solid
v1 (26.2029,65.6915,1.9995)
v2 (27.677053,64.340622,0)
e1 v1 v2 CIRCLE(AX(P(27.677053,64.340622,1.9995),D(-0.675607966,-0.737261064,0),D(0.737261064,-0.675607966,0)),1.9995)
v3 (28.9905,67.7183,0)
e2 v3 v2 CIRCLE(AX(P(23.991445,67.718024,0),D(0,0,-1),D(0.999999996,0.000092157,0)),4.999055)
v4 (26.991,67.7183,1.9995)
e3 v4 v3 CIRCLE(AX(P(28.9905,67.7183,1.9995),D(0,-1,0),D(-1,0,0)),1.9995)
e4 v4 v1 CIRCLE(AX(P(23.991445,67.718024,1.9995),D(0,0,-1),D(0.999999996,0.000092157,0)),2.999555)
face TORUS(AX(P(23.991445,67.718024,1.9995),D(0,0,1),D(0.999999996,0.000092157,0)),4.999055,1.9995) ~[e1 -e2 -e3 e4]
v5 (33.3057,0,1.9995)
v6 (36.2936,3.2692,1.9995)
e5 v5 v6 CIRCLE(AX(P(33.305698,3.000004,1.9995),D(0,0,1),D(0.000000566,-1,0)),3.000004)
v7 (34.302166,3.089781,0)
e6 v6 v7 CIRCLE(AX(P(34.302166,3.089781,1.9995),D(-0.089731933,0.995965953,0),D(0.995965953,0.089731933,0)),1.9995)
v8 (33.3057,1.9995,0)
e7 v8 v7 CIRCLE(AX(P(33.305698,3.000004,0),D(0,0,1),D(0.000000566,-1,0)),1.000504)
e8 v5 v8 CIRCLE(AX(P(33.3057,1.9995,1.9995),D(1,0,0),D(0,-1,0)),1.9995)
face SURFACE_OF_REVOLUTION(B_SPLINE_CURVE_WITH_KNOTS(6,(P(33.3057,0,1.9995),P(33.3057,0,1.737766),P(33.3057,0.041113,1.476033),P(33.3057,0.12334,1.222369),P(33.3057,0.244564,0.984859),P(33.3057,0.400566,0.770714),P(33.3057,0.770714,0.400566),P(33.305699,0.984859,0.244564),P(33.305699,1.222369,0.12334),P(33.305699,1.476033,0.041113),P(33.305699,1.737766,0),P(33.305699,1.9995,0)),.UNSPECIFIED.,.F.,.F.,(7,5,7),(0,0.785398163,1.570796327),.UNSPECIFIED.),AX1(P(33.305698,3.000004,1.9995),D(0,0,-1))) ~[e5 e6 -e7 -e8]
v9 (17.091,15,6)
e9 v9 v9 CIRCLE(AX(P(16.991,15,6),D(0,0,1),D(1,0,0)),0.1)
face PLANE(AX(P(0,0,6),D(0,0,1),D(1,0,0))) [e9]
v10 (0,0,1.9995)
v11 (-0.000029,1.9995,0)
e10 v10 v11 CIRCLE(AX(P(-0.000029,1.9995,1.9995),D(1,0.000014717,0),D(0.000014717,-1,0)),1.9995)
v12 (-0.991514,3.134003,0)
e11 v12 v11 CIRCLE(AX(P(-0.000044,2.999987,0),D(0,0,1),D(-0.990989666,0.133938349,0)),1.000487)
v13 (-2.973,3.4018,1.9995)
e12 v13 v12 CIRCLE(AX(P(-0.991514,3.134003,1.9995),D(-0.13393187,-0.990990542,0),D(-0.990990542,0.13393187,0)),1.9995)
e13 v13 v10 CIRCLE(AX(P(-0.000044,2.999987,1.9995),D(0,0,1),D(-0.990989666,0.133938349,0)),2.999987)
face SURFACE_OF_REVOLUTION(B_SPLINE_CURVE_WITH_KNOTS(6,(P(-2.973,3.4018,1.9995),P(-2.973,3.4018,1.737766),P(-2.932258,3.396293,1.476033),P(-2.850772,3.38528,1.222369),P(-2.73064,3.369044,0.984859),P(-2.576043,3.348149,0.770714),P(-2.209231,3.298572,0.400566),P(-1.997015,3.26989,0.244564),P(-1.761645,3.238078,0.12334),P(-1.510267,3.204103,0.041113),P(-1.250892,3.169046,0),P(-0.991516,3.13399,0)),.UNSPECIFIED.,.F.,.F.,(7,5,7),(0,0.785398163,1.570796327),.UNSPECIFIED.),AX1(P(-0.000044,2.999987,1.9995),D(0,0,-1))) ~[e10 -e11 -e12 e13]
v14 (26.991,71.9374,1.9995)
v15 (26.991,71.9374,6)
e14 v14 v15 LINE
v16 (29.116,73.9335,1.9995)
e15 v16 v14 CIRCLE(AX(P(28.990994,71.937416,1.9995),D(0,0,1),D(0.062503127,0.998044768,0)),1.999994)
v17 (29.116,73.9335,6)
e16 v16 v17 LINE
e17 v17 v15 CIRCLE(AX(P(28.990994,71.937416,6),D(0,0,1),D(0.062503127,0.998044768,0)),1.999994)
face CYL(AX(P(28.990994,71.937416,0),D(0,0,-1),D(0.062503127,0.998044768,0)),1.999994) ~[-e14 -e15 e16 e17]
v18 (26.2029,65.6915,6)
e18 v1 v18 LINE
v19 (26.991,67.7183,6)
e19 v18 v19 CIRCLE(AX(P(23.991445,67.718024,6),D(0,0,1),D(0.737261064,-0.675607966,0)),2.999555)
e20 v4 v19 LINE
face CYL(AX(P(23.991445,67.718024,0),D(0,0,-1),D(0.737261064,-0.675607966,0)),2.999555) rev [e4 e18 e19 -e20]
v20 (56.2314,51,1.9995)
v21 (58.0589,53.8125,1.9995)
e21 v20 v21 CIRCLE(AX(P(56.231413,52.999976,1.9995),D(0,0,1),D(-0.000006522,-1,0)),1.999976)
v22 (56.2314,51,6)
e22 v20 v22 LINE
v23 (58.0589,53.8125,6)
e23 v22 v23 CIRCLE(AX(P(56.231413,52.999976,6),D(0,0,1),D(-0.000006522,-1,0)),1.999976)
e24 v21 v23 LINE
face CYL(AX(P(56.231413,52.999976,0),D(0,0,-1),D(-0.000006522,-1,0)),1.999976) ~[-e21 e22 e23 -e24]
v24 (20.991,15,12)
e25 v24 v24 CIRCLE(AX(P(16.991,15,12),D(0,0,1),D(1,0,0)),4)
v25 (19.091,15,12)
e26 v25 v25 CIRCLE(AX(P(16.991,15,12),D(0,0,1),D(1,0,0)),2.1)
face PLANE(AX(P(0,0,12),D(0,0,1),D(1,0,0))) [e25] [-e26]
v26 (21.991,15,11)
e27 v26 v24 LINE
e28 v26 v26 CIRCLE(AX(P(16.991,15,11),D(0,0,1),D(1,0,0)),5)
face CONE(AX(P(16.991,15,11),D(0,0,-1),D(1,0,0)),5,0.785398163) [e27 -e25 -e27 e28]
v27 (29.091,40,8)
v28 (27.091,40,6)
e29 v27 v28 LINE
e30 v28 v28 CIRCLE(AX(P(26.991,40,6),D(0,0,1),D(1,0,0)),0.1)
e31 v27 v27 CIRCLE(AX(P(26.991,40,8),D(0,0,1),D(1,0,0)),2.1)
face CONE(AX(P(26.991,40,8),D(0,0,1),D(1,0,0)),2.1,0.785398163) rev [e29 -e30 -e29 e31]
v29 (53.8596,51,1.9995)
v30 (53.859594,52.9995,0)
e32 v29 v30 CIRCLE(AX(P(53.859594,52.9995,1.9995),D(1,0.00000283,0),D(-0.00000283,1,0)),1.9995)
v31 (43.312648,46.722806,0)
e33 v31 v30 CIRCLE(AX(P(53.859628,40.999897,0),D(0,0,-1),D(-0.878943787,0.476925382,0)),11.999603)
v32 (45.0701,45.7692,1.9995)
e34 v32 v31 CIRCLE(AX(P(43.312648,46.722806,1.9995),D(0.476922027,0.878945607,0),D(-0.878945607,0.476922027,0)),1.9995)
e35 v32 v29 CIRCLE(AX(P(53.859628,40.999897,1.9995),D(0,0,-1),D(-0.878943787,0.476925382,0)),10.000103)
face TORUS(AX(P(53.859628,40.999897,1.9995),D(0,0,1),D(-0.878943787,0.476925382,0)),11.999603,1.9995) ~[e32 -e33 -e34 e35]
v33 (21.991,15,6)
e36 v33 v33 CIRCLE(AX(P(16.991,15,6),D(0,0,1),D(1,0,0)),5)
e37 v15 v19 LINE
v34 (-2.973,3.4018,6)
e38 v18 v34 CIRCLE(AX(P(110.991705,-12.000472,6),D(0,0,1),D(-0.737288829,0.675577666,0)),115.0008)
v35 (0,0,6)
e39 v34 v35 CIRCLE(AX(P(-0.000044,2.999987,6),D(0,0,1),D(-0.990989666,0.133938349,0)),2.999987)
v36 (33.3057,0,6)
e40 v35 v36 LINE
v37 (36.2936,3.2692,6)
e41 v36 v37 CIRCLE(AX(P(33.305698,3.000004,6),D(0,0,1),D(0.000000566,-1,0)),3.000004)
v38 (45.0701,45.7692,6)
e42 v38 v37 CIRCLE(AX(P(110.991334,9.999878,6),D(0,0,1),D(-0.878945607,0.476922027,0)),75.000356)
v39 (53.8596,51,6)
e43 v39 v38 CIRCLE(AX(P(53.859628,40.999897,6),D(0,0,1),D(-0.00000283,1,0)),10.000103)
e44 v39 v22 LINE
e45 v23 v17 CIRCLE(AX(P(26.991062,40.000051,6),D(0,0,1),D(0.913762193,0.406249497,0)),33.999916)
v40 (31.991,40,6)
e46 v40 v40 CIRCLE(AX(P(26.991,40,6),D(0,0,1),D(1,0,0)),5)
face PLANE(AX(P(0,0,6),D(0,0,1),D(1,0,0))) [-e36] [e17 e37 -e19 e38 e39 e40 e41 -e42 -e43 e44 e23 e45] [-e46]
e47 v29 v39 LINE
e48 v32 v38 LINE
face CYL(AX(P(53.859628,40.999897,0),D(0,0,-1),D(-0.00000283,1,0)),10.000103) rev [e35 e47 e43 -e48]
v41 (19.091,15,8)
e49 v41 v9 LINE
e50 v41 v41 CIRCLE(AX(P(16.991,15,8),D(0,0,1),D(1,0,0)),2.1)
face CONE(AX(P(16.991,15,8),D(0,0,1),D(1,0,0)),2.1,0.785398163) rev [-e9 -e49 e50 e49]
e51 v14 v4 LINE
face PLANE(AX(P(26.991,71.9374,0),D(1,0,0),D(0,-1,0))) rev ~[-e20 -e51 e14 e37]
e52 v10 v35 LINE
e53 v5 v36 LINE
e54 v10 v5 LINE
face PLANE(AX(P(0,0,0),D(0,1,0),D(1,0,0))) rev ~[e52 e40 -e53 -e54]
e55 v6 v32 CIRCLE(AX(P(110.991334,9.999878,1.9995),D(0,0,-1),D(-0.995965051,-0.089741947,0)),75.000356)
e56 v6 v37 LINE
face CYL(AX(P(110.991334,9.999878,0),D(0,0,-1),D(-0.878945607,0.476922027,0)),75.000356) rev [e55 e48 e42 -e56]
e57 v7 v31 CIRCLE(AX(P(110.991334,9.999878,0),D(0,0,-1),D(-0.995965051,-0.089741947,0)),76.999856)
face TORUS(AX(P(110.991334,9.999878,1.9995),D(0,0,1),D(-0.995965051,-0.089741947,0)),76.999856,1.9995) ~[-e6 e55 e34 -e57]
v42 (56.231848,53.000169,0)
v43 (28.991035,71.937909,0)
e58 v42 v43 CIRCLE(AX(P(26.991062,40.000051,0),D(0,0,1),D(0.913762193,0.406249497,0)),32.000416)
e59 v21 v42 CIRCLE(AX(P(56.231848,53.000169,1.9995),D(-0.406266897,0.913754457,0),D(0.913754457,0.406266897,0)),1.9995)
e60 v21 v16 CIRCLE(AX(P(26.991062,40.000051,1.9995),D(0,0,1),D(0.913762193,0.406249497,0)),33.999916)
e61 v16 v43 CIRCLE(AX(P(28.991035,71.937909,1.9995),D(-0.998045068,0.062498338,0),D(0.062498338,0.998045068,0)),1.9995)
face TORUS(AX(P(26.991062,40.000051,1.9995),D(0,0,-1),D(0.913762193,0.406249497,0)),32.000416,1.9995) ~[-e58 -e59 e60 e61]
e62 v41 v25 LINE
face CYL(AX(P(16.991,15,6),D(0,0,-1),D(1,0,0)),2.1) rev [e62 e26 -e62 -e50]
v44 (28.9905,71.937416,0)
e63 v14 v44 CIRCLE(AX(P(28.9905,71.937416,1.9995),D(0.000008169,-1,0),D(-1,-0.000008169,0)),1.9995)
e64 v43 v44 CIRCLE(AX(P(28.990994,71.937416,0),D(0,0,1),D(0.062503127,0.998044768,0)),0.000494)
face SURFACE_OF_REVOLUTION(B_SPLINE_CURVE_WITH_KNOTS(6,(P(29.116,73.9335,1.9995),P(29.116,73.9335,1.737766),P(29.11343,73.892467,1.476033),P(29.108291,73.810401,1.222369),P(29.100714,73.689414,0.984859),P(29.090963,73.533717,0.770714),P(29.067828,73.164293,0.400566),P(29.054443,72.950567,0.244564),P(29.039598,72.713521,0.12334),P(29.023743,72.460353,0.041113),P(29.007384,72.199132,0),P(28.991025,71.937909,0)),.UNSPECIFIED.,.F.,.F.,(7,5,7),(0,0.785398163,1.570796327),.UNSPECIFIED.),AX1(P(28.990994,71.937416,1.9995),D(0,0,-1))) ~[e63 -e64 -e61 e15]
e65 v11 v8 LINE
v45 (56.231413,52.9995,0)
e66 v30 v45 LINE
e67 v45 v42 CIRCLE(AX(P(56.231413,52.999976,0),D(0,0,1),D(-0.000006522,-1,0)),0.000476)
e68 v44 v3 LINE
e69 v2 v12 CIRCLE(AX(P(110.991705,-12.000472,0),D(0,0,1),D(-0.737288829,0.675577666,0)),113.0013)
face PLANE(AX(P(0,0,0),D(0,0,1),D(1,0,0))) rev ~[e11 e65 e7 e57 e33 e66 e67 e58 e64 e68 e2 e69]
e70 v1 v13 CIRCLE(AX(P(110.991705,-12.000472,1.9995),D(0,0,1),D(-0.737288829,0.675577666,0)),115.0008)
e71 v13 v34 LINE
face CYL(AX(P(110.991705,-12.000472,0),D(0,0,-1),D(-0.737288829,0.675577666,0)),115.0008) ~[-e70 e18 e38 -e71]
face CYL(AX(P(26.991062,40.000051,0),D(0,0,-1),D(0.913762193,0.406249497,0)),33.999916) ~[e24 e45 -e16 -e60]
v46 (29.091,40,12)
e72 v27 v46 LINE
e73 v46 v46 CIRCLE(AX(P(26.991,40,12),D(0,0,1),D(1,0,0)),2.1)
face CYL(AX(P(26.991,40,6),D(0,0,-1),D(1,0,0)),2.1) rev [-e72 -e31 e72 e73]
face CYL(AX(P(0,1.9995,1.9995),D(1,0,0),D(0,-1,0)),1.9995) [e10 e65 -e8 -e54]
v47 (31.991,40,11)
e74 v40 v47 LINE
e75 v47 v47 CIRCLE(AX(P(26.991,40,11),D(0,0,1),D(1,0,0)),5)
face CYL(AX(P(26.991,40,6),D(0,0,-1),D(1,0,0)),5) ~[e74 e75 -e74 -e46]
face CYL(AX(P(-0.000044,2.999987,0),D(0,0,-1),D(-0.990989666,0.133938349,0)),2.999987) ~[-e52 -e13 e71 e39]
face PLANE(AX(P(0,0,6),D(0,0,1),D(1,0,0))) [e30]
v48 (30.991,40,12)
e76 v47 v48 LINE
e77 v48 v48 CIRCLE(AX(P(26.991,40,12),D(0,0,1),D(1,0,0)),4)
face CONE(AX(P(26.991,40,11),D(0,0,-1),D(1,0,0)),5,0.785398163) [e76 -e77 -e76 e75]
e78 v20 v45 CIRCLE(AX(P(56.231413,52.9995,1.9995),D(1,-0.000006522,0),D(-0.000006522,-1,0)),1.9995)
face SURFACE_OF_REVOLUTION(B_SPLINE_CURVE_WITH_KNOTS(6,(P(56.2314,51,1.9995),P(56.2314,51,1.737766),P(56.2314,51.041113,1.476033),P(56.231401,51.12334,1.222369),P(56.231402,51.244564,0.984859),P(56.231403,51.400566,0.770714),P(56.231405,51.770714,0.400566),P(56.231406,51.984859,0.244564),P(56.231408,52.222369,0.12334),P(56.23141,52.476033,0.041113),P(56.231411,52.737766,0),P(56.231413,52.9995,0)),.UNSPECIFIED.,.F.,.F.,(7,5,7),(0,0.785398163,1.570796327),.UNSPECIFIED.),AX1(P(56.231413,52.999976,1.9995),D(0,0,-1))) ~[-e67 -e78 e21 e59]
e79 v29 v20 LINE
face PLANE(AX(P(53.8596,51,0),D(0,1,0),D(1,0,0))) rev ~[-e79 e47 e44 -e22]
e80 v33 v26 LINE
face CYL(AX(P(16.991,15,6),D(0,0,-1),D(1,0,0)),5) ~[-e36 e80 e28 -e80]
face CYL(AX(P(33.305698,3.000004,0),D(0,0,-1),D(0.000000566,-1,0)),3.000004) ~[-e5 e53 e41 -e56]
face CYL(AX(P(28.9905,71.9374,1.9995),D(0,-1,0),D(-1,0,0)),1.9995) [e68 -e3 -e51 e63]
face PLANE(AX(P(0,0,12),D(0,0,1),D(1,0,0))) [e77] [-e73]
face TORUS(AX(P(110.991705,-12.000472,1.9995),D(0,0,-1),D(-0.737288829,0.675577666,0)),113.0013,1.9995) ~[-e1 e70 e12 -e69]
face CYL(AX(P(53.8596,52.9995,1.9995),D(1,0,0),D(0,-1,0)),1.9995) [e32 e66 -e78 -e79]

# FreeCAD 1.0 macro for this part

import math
import FreeCAD as App
import Part
import Sketcher
from FreeCAD import Vector


def edges_at(feature, points):
    """Names of the edges that pass closest to the given points."""
    edges = feature.Shape.Edges
    near = lambda p: min(range(len(edges)), key=lambda i: edges[i].distToShape(Part.Vertex(*p))[0])
    return sorted({f"Edge{near(p) + 1}" for p in points})

doc = App.newDocument("Part")
params = doc.addObject("Spreadsheet::Sheet", "Params")
for row, (alias, value) in enumerate([
    ("sketch1_radius", "3 mm"),
    ("sketch1_radius2", "115 mm"),
    ("sketch1_radius3", "75 mm"),
    ("sketch1_radius4", "10 mm"),
    ("sketch1_radius5", "2 mm"),
    ("pad1_length", "6 mm"),
    ("fillet_radius", "2 mm"),
    ("sketch2_diameter", "10 mm"),
    ("sketch2_diameter2", "4.2 mm"),
    ("pad2_length", "6 mm"),
    ("chamfer_size", "1 mm"),
    ("chamfer2_size", "2 mm"),
    ("chamfer3_size", "2 mm"),
], start=1):
    params.set(f"A{row}", alias)
    params.set(f"B{row}", "=" + value)
    params.setAlias(f"B{row}", alias)

body = doc.addObject("PartDesign::Body", "Body")

sketch1 = body.newObject("Sketcher::SketchObject", "Sketch")
sketch1.AttachmentSupport = (doc.getObject("XY_Plane"), [""])
sketch1.MapMode = "FlatFace"
sketch1.addGeometry(Part.ArcOfCircle(Part.Circle(Vector(23.991, 67.7183, 0), Vector(0, 0, 1), 3.00007), math.radians(-42.499536), math.radians(0)), False)
sketch1.addGeometry(Part.ArcOfCircle(Part.Circle(Vector(110.991, -12, 0), Vector(0, 0, 1), 114.999961), math.radians(137.500911), math.radians(172.303326)), False)
sketch1.addGeometry(Part.ArcOfCircle(Part.Circle(Vector(0, 3, 0), Vector(0, 0, 1), 3.000029), math.radians(172.30313), math.radians(270)), False)
sketch1.addGeometry(Part.LineSegment(Vector(0, 0, 0), Vector(33.3057, 0, 0)), False)
sketch1.addGeometry(Part.ArcOfCircle(Part.Circle(Vector(33.3057, 3, 0), Vector(0, 0, 1), 3), math.radians(-90), math.radians(5.148262)), False)
sketch1.addGeometry(Part.ArcOfCircle(Part.Circle(Vector(110.991, 10, 0), Vector(0, 0, 1), 75.000005), math.radians(151.515393), math.radians(185.148877)), False)
sketch1.addGeometry(Part.ArcOfCircle(Part.Circle(Vector(53.8596, 41, 0), Vector(0, 0, 1), 10), math.radians(90), math.radians(151.515655)), False)
sketch1.addGeometry(Part.LineSegment(Vector(53.8596, 51, 0), Vector(56.2314, 51, 0)), False)
sketch1.addGeometry(Part.ArcOfCircle(Part.Circle(Vector(56.2314, 53, 0), Vector(0, 0, 1), 2), math.radians(-90), math.radians(23.969761)), False)
sketch1.addGeometry(Part.ArcOfCircle(Part.Circle(Vector(26.991, 40, 0), Vector(0, 0, 1), 33.999994), math.radians(23.969487), math.radians(86.416675)), False)
sketch1.addGeometry(Part.ArcOfCircle(Part.Circle(Vector(28.991, 71.9374, 0), Vector(0, 0, 1), 2.00001), math.radians(86.416696), math.radians(180)), False)
sketch1.addGeometry(Part.LineSegment(Vector(26.991, 71.9374, 0), Vector(26.991, 67.7183, 0)), False)
sketch1.addConstraint(Sketcher.Constraint("Tangent", 0, 1, 1, 1))
sketch1.addConstraint(Sketcher.Constraint("Tangent", 1, 2, 2, 1))
sketch1.addConstraint(Sketcher.Constraint("Tangent", 2, 2, 3, 1))
sketch1.addConstraint(Sketcher.Constraint("Tangent", 3, 2, 4, 1))
sketch1.addConstraint(Sketcher.Constraint("Tangent", 4, 2, 5, 2))
sketch1.addConstraint(Sketcher.Constraint("Tangent", 5, 1, 6, 2))
sketch1.addConstraint(Sketcher.Constraint("Tangent", 6, 1, 7, 1))
sketch1.addConstraint(Sketcher.Constraint("Tangent", 7, 2, 8, 1))
sketch1.addConstraint(Sketcher.Constraint("Tangent", 8, 2, 9, 1))
sketch1.addConstraint(Sketcher.Constraint("Tangent", 9, 2, 10, 1))
sketch1.addConstraint(Sketcher.Constraint("Tangent", 10, 2, 11, 1))
sketch1.addConstraint(Sketcher.Constraint("Tangent", 11, 2, 0, 2))
sketch1.addConstraint(Sketcher.Constraint("Horizontal", 3))
sketch1.addConstraint(Sketcher.Constraint("Horizontal", 7))
sketch1.addConstraint(Sketcher.Constraint("Vertical", 11))
sketch1.addConstraint(Sketcher.Constraint("Coincident", 2, 2, -1, 1))
sketch1.addConstraint(Sketcher.Constraint("Equal", 0, 2))
sketch1.addConstraint(Sketcher.Constraint("Equal", 2, 4))
sketch1.addConstraint(Sketcher.Constraint("Equal", 8, 10))
sketch1.addConstraint(Sketcher.Constraint("Vertical", 1, 3, 5, 3))
sketch1.addConstraint(Sketcher.Constraint("Vertical", 9, 3, 10, 2))
sketch1.addConstraint(Sketcher.Constraint("Radius", 0, 3.0))
sketch1.addConstraint(Sketcher.Constraint("Radius", 1, 115.0))
sketch1.addConstraint(Sketcher.Constraint("Radius", 5, 75.0))
sketch1.addConstraint(Sketcher.Constraint("Radius", 6, 10.0))
sketch1.addConstraint(Sketcher.Constraint("Radius", 8, 2.0))
sketch1.addConstraint(Sketcher.Constraint("Radius", 9, 34.0))
sketch1.addConstraint(Sketcher.Constraint("DistanceY", 1, 3, -1, 1, 12.0))
sketch1.addConstraint(Sketcher.Constraint("DistanceY", -1, 1, 5, 3, 10.0))
sketch1.addConstraint(Sketcher.Constraint("DistanceY", -1, 1, 6, 3, 41.0))
sketch1.addConstraint(Sketcher.Constraint("DistanceY", -1, 1, 9, 3, 40.0))
sketch1.addConstraint(Sketcher.Constraint("DistanceX", 0, 3, 1, 3, 87.0))
sketch1.setExpression("Constraints[21]", "Params.sketch1_radius")
sketch1.setExpression("Constraints[22]", "Params.sketch1_radius2")
sketch1.setExpression("Constraints[23]", "Params.sketch1_radius3")
sketch1.setExpression("Constraints[24]", "Params.sketch1_radius4")
sketch1.setExpression("Constraints[25]", "Params.sketch1_radius5")
pad1 = body.newObject("PartDesign::Pad", "Pad")
pad1.Profile = sketch1
pad1.setExpression("Length", "Params.pad1_length")
doc.recompute()

fillet = body.newObject("PartDesign::Fillet", "Fillet")
fillet.Base = (pad1, edges_at(pad1, [
    (57.908, 51.91, 0),
    (46.399, 67.917, 0),
    (27.622, 73.395, 0),
    (26.991, 69.828, 0),
    (26.787, 66.631, 0),
    (6.849, 36.779, 0),
    (-2.259, 1.026, 0),
    (16.653, 0, 0),
    (35.52, 0.976, 0),
    (37.541, 25.168, 0),
    (48.745, 49.593, 0),
    (55.045, 51, 0),
]))
fillet.setExpression("Radius", "Params.fillet_radius")

sketch2 = body.newObject("Sketcher::SketchObject", "Sketch001")
sketch2.AttachmentSupport = (doc.getObject("XY_Plane"), [""])
sketch2.MapMode = "FlatFace"
sketch2.AttachmentOffset = App.Placement(Vector(0, 0, 6), App.Rotation())
sketch2.addGeometry(Part.Circle(Vector(16.991, 15, 0), Vector(0, 0, 1), 5), False)
sketch2.addGeometry(Part.Circle(Vector(16.991, 15, 0), Vector(0, 0, 1), 2.1), False)
sketch2.addGeometry(Part.Circle(Vector(26.991, 40, 0), Vector(0, 0, 1), 5), False)
sketch2.addGeometry(Part.Circle(Vector(26.991, 40, 0), Vector(0, 0, 1), 2.1), False)
sketch2.addConstraint(Sketcher.Constraint("Coincident", 1, 3, 0, 3))
sketch2.addConstraint(Sketcher.Constraint("Coincident", 3, 3, 2, 3))
sketch2.addConstraint(Sketcher.Constraint("Equal", 0, 2))
sketch2.addConstraint(Sketcher.Constraint("Equal", 1, 3))
sketch2.addConstraint(Sketcher.Constraint("Diameter", 0, 10.0))
sketch2.addConstraint(Sketcher.Constraint("Diameter", 1, 4.2))
sketch2.addConstraint(Sketcher.Constraint("DistanceY", -1, 1, 0, 3, 15.0))
sketch2.addConstraint(Sketcher.Constraint("DistanceY", -1, 1, 2, 3, 40.0))
sketch2.addConstraint(Sketcher.Constraint("DistanceX", 0, 3, 2, 3, 10.0))
sketch2.addConstraint(Sketcher.Constraint("DistanceX", -1, 1, 0, 3, 16.991))
sketch2.setExpression("Constraints[4]", "Params.sketch2_diameter")
sketch2.setExpression("Constraints[5]", "Params.sketch2_diameter2")
pad2 = body.newObject("PartDesign::Pad", "Pad001")
pad2.Profile = sketch2
pad2.setExpression("Length", "Params.pad2_length")
doc.recompute()

chamfer = body.newObject("PartDesign::Chamfer", "Chamfer")
chamfer.Base = (pad2, edges_at(pad2, [(21.991, 40, 12), (11.991, 15, 12)]))
chamfer.setExpression("Size", "Params.chamfer_size")
doc.recompute()

chamfer2 = body.newObject("PartDesign::Chamfer", "Chamfer001")
chamfer2.Base = (chamfer, edges_at(chamfer, [(24.891, 40, 6)]))
chamfer2.setExpression("Size", "Params.chamfer2_size")
doc.recompute()

chamfer3 = body.newObject("PartDesign::Chamfer", "Chamfer002")
chamfer3.Base = (chamfer2, edges_at(chamfer2, [(14.891, 15, 6)]))
chamfer3.setExpression("Size", "Params.chamfer3_size")

doc.recompute()
